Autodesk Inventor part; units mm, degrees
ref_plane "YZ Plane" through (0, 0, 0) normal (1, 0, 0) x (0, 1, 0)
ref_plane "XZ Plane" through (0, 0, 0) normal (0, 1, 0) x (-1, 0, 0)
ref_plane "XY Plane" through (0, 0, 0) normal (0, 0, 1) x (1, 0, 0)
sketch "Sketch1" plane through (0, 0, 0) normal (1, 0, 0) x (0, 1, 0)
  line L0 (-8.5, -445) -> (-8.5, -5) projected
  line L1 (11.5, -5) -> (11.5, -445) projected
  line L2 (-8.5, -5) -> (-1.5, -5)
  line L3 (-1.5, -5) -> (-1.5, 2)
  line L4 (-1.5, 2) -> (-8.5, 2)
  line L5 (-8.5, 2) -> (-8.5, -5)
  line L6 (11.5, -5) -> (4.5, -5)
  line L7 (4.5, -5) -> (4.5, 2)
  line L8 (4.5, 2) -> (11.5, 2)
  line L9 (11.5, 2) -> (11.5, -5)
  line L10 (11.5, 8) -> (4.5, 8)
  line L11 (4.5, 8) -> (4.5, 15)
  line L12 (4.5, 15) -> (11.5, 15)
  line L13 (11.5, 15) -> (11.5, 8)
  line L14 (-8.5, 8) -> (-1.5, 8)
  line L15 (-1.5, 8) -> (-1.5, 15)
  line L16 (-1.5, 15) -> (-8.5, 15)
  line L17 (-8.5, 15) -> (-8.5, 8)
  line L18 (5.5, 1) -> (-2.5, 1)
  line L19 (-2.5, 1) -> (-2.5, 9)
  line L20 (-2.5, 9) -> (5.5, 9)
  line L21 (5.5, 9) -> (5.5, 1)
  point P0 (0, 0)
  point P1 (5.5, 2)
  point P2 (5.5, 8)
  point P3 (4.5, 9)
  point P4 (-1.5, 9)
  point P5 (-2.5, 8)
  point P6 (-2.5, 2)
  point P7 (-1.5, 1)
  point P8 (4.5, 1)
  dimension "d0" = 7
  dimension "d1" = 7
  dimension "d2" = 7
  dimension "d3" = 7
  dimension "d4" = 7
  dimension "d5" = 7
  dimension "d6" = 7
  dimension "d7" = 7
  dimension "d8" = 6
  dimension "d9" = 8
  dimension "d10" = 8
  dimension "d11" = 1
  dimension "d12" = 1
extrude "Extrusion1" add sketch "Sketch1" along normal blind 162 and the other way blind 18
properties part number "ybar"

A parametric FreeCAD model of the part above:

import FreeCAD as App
import Part
import Sketcher

V = App.Vector


def add_polygon(sketch, points):
    """Adds a closed chain of lines whose ends are joined by coincident constraints."""
    first, n = sketch.GeometryCount, len(points)
    for a, b in zip(points, points[1:] + points[:1]):
        sketch.addGeometry(Part.LineSegment(App.Vector(*a, 0), App.Vector(*b, 0)), False)
    for i in range(n):
        sketch.addConstraint(Sketcher.Constraint("Coincident", first + i, 2, first + (i + 1) % n, 1))

doc = App.newDocument("Part")
params = doc.addObject("Spreadsheet::Sheet", "Params")
for row, (alias, value) in enumerate([
    ("sketch1_width", "7 mm"),
    ("sketch1_width2", "6 mm"),
    ("pad1_length", "162 mm"),
    ("pad1_length2", "18 mm"),
], start=1):
    params.set(f"A{row}", alias)
    params.set(f"B{row}", "=" + value)
    params.setAlias(f"B{row}", alias)

body = doc.addObject("PartDesign::Body", "Body")

# Sketch on YZ plane
sketch1 = doc.addObject("Sketcher::SketchObject", "Sketch")
body.addObject(sketch1)
sketch1.AttachmentSupport = (doc.YZ_Plane, [""])
sketch1.MapMode = "FlatFace"
add_polygon(sketch1, [(-8, 2), (-8, -5), (-2, -5), (-2, 1), (4, 1), (4, -5), (12, -5), (12, 2), (6, 2), (6, 8), (12, 8), (12, 15), (4, 15), (4, 9), (-2, 9), (-2, 15), (-8, 15), (-8, 8), (-2, 8), (-2, 2)])  # lines 0-19
sketch1.addConstraint([
    Sketcher.Constraint("Vertical", 0),
    Sketcher.Constraint("Horizontal", 1),
    Sketcher.Constraint("Vertical", 2),
    Sketcher.Constraint("Horizontal", 3),
    Sketcher.Constraint("Vertical", 4),
    Sketcher.Constraint("Horizontal", 5),
    Sketcher.Constraint("Vertical", 6),
    Sketcher.Constraint("Horizontal", 7),
    Sketcher.Constraint("Vertical", 8),
    Sketcher.Constraint("Horizontal", 9),
    Sketcher.Constraint("Vertical", 10),
    Sketcher.Constraint("Horizontal", 11),
    Sketcher.Constraint("Vertical", 12),
    Sketcher.Constraint("Horizontal", 13),
    Sketcher.Constraint("Vertical", 14),
    Sketcher.Constraint("Horizontal", 15),
    Sketcher.Constraint("Vertical", 16),
    Sketcher.Constraint("Horizontal", 17),
    Sketcher.Constraint("Vertical", 18),
    Sketcher.Constraint("Horizontal", 19),
    Sketcher.Constraint("Horizontal", 1, 2, 4, 2),
    Sketcher.Constraint("Horizontal", 11, 2, 14, 2),
    Sketcher.Constraint("Horizontal", 9, 2, 16, 2),
    Sketcher.Constraint("Horizontal", 7, 2, 18, 2),
    Sketcher.Constraint("Vertical", 6, 2, 9, 2),
    Sketcher.Constraint("Vertical", 4, 2, 11, 2),
    Sketcher.Constraint("Vertical", 2, 2, 13, 2),
    Sketcher.Constraint("Vertical", 0, 2, 15, 2),
    Sketcher.Constraint("Equal", 1, 5),
    Sketcher.Constraint("Equal", 3, 7),
    Sketcher.Constraint("Equal", 13, 17),
    Sketcher.Constraint("Equal", 15, 0),
    Sketcher.Constraint("Equal", 19, 2),
    Sketcher.Constraint("Equal", 4, 8),
    Sketcher.Constraint("Equal", 6, 10),
    Sketcher.Constraint("Equal", 8, 12),
    Sketcher.Constraint("DistanceX", 1, 1, 1, 2, 7.0),
    Sketcher.Constraint("DistanceX", 3, 1, 3, 2, 6.0),
    Sketcher.Constraint("DistanceY", -1, 1, 2, 2, 1.0),
    Sketcher.Constraint("DistanceX", 0, 2, -1, 1, 8.5),
])
sketch1.setExpression("Constraints[56]", "Params.sketch1_width")
sketch1.setExpression("Constraints[57]", "Params.sketch1_width2")
pad1 = doc.addObject("PartDesign::Pad", "Pad")
body.addObject(pad1)
pad1.Profile = sketch1
pad1.Type = "TwoLengths"
pad1.setExpression("Length", "Params.pad1_length")
pad1.setExpression("Length2", "Params.pad1_length2")

doc.recompute()
